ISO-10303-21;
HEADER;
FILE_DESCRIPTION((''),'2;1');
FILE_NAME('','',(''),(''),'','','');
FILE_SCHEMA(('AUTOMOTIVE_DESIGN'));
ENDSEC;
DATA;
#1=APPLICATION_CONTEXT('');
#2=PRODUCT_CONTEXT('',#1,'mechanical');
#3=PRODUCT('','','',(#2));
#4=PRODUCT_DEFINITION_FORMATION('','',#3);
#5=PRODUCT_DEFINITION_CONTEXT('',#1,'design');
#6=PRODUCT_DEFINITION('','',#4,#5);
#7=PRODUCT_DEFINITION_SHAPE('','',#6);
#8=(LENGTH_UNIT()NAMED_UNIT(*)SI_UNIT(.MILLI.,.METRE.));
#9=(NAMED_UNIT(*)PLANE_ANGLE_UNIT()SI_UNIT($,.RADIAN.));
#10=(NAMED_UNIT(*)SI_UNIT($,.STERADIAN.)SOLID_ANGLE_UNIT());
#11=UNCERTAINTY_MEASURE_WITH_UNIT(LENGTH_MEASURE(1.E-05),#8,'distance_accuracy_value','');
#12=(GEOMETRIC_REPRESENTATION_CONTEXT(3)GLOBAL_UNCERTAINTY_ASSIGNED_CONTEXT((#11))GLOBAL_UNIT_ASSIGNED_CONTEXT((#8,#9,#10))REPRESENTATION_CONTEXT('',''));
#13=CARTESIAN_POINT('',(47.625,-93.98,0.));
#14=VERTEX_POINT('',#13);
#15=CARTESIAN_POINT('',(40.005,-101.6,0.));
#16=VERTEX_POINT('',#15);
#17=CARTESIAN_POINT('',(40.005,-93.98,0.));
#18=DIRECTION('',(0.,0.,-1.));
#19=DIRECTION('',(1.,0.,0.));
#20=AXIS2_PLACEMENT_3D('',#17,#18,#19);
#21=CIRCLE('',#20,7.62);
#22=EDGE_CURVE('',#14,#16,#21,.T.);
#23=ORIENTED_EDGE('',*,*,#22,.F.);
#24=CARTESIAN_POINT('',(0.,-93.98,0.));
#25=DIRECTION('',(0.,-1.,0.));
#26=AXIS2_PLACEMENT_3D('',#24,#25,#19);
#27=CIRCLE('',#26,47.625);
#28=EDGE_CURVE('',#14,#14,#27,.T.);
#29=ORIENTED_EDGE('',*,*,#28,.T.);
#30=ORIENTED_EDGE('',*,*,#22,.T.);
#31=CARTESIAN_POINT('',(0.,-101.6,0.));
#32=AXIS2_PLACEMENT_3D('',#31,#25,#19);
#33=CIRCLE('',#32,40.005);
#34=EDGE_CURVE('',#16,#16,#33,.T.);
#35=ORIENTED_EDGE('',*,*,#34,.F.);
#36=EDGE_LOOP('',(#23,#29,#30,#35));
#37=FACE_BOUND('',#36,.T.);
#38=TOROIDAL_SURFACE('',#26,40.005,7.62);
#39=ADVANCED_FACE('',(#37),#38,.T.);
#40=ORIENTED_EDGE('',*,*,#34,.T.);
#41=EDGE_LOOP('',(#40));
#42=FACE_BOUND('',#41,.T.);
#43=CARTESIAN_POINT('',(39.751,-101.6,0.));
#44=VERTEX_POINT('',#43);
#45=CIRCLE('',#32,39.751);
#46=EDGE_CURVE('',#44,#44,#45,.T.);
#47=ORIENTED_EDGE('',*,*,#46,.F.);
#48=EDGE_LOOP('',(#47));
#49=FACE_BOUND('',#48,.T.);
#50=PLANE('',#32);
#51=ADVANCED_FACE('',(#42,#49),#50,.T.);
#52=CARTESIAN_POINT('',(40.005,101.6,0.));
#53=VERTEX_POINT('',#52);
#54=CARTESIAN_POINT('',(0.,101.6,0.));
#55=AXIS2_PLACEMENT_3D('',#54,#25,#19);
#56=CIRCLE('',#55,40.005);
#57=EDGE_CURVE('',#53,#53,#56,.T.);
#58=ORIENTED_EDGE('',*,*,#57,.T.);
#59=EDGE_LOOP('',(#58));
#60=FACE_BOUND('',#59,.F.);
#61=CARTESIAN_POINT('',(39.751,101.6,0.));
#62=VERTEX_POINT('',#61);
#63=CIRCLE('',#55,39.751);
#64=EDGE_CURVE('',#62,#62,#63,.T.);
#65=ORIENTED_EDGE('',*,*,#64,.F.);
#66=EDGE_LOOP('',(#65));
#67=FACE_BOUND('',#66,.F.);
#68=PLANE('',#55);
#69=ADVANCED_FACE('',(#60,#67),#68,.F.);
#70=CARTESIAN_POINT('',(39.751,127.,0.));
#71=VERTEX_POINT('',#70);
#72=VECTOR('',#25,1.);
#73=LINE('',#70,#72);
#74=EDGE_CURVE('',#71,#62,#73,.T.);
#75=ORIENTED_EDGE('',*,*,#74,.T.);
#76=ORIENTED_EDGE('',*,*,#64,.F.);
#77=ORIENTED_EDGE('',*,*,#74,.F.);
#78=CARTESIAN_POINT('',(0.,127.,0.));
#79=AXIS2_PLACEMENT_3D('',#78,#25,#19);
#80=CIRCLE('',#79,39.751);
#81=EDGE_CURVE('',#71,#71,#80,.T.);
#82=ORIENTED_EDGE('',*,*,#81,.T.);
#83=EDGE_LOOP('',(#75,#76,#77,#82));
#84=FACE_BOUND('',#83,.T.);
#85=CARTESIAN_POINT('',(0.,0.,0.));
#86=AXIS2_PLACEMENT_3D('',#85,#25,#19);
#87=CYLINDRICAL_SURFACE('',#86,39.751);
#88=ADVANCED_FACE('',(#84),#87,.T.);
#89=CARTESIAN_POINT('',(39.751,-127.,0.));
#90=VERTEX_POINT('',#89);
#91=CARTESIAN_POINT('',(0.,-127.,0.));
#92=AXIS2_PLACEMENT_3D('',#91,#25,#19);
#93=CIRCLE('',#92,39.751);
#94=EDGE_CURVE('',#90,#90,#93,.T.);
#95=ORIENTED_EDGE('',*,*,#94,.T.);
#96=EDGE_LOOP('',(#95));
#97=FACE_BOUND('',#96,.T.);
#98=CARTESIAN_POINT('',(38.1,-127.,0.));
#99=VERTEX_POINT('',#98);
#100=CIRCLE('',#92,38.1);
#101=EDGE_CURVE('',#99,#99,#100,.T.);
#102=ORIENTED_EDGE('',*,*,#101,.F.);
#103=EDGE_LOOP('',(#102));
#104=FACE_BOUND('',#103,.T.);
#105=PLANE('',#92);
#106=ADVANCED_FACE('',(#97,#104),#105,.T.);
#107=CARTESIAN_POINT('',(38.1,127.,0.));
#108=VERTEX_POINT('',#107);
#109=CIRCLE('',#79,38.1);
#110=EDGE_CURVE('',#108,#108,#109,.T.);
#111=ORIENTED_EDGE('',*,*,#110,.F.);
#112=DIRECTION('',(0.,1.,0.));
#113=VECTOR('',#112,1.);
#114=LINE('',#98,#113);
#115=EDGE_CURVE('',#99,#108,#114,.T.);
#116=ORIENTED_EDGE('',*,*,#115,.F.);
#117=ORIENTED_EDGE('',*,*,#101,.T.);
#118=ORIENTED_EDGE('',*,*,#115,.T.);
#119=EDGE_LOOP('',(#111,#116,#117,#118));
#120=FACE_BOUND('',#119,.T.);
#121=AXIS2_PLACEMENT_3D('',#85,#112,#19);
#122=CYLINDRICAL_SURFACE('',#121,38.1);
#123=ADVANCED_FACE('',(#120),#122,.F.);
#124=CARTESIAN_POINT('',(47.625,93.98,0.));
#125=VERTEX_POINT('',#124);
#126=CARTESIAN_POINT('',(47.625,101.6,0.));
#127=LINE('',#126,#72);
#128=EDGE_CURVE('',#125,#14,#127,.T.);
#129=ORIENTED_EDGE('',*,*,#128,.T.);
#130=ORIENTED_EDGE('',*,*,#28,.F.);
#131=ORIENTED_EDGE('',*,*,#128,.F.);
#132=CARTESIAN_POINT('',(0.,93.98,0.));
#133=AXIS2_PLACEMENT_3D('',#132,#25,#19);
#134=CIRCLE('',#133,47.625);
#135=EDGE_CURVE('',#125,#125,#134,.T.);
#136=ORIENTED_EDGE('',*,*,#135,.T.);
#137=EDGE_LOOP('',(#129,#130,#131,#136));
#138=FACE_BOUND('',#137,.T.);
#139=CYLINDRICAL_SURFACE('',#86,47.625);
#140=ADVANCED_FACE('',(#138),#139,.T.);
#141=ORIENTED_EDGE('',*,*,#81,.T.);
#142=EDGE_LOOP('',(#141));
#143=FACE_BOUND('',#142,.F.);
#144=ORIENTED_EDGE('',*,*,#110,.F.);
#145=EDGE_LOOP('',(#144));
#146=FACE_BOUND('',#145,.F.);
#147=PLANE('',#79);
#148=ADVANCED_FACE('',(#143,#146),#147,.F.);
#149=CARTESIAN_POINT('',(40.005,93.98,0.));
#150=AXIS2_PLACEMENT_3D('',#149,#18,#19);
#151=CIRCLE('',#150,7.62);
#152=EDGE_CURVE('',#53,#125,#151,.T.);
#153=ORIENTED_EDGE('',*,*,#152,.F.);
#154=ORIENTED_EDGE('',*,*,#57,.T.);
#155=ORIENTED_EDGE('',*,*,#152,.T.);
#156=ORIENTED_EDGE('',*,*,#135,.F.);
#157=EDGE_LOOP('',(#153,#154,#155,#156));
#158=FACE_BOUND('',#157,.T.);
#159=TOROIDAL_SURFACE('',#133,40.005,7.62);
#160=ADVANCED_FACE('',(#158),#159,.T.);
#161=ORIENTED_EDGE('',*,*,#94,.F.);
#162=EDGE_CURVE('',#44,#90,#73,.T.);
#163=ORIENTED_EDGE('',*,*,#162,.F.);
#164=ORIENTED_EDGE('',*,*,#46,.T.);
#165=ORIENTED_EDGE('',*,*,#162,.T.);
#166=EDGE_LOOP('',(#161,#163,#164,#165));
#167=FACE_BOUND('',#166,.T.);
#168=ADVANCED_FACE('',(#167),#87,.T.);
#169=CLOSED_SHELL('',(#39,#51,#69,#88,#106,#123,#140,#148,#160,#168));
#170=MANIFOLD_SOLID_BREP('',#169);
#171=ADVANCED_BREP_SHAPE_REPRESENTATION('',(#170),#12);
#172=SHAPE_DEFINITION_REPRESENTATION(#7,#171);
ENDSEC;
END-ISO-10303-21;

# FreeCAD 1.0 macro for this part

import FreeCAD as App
import Part
import Sketcher
from FreeCAD import Vector
Q = App.Units.Quantity


def edges_at(feature, points):
    """Names of the edges that pass closest to the given points."""
    edges = feature.Shape.Edges
    near = lambda p: min(range(len(edges)), key=lambda i: edges[i].distToShape(Part.Vertex(*p))[0])
    return sorted({f"Edge{near(p) + 1}" for p in points})

doc = App.newDocument("Part")
body = doc.addObject("PartDesign::Body", "Body")

# Sketch on XZ plane
sketch1 = body.newObject("Sketcher::SketchObject", "Sketch")
sketch1.AttachmentSupport = (doc.getObject("XZ_Plane"), [""])
sketch1.MapMode = "FlatFace"
sketch1.addGeometry(Part.Circle(Vector(0, 0, 0), Vector(0, 0, 1), 40), False)
sketch1.addGeometry(Part.Circle(Vector(0, 0, 0), Vector(0, 0, 1), 38), False)
sketch1.addConstraint(Sketcher.Constraint("Coincident", 0, 3, -1, 1))
sketch1.addConstraint(Sketcher.Constraint("Coincident", 1, 3, -1, 1))
sketch1.addConstraint(Sketcher.Constraint("Diameter", 1, Q("3 in")))
sketch1.addConstraint(Sketcher.Constraint("Diameter", 0, Q("3.13 in")))
pad1 = body.newObject("PartDesign::Pad", "Pad")
pad1.Profile = sketch1
pad1.Length = Q("10 in")
pad1.Midplane = True

# Sketch on XZ plane
sketch2 = body.newObject("Sketcher::SketchObject", "Sketch001")
sketch2.AttachmentSupport = (doc.getObject("XZ_Plane"), [""])
sketch2.MapMode = "FlatFace"
sketch2.addGeometry(Part.Circle(Vector(0, 0, 0), Vector(0, 0, 1), 48), False)
sketch2.addGeometry(Part.Circle(Vector(0, 0, 0), Vector(0, 0, 1), 40), False)
sketch2.addConstraint(Sketcher.Constraint("Coincident", 0, 3, -1, 1))
sketch2.addConstraint(Sketcher.Constraint("Coincident", 1, 3, -1, 1))
sketch2.addConstraint(Sketcher.Constraint("Diameter", 0, Q("3.75 in")))
sketch2.addConstraint(Sketcher.Constraint("Diameter", 1, Q("3.13 in")))
pad2 = body.newObject("PartDesign::Pad", "Pad001")
pad2.Profile = sketch2
pad2.Length = Q("8 in")
pad2.Midplane = True
doc.recompute()

fillet = body.newObject("PartDesign::Fillet", "Fillet")
fillet.Base = (pad2, edges_at(pad2, [(-47.625, -101.6, 0), (-47.625, 101.6, 0)]))
fillet.Radius = Q("0.3 in")

doc.recompute()
